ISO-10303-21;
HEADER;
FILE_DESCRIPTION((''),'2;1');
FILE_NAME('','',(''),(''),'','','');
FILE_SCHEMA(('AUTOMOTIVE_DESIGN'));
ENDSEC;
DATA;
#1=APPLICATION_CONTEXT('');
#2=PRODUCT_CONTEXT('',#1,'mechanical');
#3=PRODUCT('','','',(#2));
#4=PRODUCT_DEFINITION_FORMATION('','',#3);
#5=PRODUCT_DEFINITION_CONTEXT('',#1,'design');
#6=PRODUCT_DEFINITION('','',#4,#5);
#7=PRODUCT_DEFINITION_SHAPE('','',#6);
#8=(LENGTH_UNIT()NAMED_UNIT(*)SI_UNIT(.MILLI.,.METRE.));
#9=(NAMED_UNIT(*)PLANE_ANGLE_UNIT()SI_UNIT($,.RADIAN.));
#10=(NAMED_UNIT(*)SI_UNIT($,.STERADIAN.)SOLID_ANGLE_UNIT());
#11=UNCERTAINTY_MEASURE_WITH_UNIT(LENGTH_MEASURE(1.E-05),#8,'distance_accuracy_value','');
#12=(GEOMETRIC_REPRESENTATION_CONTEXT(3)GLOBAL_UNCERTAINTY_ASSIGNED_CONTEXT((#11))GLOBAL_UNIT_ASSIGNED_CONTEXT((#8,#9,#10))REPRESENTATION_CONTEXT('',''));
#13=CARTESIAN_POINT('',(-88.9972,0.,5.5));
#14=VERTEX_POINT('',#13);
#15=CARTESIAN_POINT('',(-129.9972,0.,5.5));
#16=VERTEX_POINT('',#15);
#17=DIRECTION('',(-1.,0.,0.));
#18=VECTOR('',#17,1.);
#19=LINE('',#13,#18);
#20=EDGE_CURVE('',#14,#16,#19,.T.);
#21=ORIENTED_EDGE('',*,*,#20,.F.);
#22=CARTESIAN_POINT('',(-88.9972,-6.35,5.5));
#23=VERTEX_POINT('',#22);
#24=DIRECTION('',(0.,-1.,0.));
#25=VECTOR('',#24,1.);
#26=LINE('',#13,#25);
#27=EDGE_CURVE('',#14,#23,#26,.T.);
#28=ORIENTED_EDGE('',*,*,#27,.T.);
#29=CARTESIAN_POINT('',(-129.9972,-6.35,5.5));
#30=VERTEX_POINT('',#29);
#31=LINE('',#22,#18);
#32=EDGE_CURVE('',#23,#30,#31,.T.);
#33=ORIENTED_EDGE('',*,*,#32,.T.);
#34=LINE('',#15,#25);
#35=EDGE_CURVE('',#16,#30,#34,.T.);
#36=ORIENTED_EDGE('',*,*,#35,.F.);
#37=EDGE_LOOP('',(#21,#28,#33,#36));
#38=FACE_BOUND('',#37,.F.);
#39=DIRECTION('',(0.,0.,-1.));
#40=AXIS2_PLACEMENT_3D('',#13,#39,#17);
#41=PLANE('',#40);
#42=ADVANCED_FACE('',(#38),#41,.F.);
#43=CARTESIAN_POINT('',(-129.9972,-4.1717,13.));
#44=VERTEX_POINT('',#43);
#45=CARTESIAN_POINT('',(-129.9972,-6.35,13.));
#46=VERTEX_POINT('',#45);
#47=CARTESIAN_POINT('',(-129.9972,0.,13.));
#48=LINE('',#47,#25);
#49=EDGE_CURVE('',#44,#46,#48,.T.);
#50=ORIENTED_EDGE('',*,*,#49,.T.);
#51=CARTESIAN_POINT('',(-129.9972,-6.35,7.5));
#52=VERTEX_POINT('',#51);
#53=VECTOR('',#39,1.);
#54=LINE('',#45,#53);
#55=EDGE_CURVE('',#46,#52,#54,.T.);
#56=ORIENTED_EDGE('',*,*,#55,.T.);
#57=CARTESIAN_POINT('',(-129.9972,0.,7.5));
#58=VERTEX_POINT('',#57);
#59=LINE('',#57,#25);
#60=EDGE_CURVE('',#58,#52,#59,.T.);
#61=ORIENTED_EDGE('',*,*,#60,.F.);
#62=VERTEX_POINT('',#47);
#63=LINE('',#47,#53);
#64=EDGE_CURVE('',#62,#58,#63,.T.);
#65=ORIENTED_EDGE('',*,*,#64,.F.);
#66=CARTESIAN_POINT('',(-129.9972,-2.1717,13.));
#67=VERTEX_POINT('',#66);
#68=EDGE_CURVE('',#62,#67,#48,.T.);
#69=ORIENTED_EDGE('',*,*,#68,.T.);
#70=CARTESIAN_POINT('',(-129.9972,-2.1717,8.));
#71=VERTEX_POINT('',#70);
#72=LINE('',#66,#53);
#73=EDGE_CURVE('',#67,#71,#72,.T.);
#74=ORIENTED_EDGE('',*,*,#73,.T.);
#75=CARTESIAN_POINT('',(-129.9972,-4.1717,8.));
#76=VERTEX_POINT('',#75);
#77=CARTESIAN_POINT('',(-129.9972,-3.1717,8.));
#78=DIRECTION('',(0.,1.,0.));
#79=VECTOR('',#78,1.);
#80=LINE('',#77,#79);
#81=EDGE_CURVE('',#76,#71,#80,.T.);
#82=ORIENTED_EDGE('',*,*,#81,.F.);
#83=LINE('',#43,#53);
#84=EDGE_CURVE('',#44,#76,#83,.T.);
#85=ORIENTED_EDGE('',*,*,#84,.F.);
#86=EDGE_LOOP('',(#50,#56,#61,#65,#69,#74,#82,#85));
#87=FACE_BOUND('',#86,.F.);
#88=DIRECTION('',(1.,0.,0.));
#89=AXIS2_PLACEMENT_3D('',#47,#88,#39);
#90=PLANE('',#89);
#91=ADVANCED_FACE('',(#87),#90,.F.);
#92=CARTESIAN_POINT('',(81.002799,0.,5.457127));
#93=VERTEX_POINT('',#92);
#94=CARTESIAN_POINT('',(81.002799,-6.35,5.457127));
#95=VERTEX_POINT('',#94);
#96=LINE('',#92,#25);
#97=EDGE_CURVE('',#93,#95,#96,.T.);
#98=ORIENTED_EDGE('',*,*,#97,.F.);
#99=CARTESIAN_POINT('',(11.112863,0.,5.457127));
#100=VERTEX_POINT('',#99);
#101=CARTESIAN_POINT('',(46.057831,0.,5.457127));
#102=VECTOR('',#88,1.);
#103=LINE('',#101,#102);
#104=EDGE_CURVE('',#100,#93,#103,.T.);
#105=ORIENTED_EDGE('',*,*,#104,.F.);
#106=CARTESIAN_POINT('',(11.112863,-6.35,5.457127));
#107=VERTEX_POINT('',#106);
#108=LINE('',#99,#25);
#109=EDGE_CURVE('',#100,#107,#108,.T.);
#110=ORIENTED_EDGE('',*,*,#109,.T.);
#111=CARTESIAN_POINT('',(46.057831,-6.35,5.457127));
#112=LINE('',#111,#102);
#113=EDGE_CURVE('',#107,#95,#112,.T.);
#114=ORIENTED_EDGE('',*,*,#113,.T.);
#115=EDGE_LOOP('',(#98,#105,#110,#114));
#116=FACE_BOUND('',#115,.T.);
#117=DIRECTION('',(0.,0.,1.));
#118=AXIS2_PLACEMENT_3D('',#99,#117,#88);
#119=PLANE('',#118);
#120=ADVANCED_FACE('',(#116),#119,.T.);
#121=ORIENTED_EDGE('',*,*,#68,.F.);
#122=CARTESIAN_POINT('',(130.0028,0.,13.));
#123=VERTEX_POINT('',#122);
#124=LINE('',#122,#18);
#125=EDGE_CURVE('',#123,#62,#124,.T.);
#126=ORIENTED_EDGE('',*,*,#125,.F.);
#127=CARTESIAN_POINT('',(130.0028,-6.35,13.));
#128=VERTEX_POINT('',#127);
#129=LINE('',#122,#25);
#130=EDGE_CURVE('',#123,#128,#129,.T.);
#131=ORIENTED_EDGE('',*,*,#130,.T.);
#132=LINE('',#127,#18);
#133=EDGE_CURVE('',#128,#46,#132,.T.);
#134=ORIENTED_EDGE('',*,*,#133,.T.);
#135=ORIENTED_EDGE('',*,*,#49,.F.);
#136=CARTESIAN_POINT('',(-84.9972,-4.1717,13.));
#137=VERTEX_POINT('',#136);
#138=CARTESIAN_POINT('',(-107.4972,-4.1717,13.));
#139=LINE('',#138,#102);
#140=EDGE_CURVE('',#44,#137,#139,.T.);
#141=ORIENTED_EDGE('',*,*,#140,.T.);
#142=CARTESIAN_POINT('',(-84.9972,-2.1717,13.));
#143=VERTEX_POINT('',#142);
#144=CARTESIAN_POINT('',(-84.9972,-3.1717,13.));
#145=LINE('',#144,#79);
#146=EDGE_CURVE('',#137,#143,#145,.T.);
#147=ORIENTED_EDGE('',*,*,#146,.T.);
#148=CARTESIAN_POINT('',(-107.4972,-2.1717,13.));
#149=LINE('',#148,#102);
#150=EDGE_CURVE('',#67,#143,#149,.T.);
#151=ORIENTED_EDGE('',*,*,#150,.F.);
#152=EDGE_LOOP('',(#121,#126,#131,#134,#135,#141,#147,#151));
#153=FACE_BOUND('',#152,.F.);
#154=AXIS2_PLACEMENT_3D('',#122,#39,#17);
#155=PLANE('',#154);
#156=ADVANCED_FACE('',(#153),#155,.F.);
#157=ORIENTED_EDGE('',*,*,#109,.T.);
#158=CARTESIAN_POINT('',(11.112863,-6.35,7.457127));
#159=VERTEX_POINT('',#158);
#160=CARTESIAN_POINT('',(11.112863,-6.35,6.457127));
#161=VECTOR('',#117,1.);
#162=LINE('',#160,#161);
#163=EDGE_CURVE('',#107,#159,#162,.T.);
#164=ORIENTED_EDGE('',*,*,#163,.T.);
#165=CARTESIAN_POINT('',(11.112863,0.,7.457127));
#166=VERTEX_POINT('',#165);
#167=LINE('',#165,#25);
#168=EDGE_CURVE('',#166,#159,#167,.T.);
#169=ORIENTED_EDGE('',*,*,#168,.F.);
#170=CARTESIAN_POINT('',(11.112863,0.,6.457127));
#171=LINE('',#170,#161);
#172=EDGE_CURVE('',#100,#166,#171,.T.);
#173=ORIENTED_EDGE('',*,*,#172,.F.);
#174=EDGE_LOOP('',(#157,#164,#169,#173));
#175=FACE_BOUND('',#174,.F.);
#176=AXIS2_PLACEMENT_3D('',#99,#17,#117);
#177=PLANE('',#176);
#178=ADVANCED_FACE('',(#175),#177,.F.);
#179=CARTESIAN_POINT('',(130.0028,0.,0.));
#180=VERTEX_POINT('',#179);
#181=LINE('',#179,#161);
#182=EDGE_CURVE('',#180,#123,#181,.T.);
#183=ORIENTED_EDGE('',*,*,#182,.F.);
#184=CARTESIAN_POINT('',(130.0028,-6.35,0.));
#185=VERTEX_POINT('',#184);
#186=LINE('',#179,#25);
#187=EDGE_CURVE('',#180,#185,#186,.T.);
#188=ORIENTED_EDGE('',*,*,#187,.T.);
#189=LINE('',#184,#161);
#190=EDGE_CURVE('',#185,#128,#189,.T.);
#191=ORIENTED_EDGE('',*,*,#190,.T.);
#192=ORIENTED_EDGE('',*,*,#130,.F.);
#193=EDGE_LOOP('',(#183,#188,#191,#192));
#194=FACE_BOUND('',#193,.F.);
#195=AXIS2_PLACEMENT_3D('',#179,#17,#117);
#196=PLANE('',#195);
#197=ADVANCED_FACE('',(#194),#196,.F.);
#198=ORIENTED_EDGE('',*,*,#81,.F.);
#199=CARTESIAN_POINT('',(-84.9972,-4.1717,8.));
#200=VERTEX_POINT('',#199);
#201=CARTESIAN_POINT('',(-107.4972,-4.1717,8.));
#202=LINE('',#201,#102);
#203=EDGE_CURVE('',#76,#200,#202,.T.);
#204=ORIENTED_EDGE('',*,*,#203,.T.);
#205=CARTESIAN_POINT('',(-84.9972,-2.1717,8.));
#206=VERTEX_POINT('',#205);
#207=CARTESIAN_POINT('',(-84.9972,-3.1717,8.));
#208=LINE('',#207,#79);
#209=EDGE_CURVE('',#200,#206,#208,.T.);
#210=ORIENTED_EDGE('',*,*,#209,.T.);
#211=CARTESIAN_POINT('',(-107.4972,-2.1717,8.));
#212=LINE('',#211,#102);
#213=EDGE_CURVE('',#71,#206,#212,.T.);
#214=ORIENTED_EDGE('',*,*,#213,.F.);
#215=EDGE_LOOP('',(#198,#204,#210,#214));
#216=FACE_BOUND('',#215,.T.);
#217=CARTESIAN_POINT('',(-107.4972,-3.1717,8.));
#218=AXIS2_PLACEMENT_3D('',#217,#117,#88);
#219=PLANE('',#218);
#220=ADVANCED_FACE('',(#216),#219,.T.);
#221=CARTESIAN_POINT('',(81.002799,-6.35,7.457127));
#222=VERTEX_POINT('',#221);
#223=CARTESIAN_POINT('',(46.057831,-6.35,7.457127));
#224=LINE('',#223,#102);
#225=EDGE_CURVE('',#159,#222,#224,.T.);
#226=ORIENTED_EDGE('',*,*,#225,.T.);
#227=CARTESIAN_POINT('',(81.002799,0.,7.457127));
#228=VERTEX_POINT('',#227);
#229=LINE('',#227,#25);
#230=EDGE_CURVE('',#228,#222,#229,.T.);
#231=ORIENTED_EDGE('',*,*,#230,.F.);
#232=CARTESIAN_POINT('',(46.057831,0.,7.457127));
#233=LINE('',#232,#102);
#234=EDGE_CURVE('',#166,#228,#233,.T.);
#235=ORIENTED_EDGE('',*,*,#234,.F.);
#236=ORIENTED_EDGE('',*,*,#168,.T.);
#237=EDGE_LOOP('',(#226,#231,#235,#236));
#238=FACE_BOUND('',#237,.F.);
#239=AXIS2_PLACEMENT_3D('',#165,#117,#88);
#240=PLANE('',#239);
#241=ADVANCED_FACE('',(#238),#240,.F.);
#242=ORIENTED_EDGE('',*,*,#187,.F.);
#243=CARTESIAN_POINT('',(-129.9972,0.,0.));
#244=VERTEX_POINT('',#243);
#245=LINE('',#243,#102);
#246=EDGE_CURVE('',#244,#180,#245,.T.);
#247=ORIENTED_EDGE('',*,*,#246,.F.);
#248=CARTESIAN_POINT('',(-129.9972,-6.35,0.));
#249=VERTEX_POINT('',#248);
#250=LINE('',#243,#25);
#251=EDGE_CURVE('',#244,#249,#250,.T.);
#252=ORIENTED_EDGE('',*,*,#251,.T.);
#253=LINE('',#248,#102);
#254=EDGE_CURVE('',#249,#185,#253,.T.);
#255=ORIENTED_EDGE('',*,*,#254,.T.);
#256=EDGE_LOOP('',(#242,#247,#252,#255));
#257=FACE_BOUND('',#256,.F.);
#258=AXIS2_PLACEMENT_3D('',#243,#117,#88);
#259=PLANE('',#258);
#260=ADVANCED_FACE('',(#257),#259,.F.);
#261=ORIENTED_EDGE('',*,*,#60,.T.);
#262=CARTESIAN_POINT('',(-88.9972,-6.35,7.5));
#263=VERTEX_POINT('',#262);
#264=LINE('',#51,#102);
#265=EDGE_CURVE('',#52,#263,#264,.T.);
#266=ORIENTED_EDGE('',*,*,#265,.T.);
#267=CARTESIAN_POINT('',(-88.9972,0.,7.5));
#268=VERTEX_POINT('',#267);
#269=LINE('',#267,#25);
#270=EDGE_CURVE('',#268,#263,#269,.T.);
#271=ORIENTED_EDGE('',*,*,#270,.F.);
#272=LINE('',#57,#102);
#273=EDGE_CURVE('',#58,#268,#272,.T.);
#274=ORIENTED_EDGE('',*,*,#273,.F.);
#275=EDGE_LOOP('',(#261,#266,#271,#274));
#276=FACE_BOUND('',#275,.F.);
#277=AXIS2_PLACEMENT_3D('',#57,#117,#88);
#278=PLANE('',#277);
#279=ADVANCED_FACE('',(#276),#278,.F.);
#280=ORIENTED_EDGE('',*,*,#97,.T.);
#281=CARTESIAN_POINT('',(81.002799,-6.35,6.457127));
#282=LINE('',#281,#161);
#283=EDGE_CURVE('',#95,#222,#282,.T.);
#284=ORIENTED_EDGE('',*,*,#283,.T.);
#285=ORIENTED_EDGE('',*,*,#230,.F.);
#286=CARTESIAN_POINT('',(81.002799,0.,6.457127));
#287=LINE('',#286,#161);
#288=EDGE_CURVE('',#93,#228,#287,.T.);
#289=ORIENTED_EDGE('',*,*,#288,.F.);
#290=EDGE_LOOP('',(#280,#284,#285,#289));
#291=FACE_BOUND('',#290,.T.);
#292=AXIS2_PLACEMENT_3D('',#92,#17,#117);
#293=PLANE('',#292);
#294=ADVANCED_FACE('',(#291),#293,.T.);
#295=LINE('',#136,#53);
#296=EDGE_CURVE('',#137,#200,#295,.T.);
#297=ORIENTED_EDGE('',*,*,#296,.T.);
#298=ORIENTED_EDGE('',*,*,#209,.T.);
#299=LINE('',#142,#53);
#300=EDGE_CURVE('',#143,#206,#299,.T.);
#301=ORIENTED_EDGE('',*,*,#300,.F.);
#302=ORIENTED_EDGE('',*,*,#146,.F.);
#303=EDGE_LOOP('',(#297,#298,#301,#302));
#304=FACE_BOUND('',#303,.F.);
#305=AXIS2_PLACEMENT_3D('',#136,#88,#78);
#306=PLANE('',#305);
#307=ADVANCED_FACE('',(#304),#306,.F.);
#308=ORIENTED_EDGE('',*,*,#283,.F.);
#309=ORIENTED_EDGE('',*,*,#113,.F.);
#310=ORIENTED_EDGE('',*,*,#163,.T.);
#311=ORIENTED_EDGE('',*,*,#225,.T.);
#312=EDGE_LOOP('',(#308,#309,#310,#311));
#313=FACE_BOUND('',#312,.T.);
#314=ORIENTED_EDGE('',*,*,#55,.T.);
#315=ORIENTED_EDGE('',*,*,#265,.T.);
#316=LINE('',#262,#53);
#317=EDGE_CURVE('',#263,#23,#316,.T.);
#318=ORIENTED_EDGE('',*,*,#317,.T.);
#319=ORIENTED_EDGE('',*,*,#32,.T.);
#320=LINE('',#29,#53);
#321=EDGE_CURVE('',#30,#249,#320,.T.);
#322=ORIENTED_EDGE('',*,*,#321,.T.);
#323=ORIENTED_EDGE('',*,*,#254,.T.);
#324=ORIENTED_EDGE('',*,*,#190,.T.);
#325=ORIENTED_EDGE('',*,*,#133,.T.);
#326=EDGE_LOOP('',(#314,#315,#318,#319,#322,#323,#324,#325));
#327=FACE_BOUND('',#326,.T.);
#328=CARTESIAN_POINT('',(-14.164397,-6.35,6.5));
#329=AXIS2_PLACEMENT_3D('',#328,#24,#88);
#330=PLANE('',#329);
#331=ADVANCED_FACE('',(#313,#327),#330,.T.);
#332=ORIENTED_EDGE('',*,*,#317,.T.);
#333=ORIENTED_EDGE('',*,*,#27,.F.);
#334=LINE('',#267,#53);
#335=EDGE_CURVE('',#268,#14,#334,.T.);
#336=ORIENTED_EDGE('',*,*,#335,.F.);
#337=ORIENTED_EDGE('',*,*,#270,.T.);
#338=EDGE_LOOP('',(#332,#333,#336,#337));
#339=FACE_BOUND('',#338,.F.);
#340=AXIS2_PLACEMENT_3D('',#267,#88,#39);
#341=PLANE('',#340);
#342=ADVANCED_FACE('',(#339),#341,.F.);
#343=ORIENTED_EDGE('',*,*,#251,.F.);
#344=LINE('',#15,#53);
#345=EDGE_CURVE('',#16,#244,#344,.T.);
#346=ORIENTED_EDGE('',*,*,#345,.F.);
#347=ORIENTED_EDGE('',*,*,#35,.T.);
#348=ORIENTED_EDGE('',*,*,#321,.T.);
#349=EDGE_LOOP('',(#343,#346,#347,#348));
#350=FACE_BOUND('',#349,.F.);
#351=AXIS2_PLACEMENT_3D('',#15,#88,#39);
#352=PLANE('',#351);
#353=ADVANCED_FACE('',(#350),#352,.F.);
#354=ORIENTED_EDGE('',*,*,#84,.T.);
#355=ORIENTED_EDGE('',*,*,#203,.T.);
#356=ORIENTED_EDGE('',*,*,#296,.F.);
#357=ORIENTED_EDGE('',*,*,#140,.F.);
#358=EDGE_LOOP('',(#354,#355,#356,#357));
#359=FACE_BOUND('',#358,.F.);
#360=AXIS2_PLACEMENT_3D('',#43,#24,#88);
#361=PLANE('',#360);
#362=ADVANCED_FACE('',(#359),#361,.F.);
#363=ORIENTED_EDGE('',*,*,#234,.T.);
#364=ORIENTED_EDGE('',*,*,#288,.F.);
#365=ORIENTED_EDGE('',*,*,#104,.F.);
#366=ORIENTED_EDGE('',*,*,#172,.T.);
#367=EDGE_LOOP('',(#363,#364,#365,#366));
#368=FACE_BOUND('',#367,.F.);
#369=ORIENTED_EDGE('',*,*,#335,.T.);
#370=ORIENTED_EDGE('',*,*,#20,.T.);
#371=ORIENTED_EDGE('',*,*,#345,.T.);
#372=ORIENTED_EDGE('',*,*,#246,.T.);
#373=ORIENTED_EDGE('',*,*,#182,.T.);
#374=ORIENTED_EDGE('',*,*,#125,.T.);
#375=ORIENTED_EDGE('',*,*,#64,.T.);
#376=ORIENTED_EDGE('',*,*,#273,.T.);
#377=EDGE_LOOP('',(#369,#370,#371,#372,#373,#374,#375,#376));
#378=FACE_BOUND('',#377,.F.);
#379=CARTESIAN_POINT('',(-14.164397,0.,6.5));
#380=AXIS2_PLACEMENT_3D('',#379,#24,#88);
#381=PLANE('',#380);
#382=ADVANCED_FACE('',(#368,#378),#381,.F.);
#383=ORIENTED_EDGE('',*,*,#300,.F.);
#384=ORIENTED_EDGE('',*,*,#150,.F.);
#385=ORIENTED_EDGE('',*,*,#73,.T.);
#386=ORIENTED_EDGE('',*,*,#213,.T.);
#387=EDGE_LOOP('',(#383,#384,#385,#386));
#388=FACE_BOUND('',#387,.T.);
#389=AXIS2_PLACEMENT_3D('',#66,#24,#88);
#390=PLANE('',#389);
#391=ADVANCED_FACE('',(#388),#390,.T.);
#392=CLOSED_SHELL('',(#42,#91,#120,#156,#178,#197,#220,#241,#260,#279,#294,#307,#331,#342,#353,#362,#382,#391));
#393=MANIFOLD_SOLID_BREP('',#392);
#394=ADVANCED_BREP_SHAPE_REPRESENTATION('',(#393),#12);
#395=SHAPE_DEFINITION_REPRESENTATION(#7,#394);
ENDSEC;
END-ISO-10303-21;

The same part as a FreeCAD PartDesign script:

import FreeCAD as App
import Part
import Sketcher

V = App.Vector


def add_polygon(sketch, points):
    """Adds a closed chain of lines whose ends are joined by coincident constraints."""
    first, n = sketch.GeometryCount, len(points)
    for a, b in zip(points, points[1:] + points[:1]):
        sketch.addGeometry(Part.LineSegment(App.Vector(*a, 0), App.Vector(*b, 0)), False)
    for i in range(n):
        sketch.addConstraint(Sketcher.Constraint("Coincident", first + i, 2, first + (i + 1) % n, 1))

doc = App.newDocument("Part")
body = doc.addObject("PartDesign::Body", "Body")

# Sketch on XZ plane
sketch1 = doc.addObject("Sketcher::SketchObject", "Sketch")
body.addObject(sketch1)
sketch1.AttachmentSupport = (doc.XZ_Plane, [""])
sketch1.MapMode = "FlatFace"
add_polygon(sketch1, [(130, 13), (-130, 13), (-130, 7.5), (-89, 7.5), (-89, 5.5), (-130, 5.5), (-130, 0), (130, 0)])  # lines 0-7
add_polygon(sketch1, [(81, 5.5), (11.1, 5.5), (11.1, 7.5), (81, 7.5)])  # lines 8-11
sketch1.addConstraint([
    Sketcher.Constraint("Horizontal", 0),
    Sketcher.Constraint("Vertical", 1),
    Sketcher.Constraint("Horizontal", 2),
    Sketcher.Constraint("Vertical", 3),
    Sketcher.Constraint("Horizontal", 4),
    Sketcher.Constraint("Vertical", 5),
    Sketcher.Constraint("Horizontal", 6),
    Sketcher.Constraint("Vertical", 7),
    Sketcher.Constraint("Horizontal", 8),
    Sketcher.Constraint("Vertical", 9),
    Sketcher.Constraint("Horizontal", 10),
    Sketcher.Constraint("Vertical", 11),
    Sketcher.Constraint("PointOnObject", 5, 2, -1),
    Sketcher.Constraint("Vertical", 1, 2, 4, 2),
    Sketcher.Constraint("Equal", 1, 5),
    Sketcher.Constraint("Equal", 3, 9),
    Sketcher.Constraint("DistanceX", 0, 2, 0, 1, 260.0),
    Sketcher.Constraint("DistanceX", 2, 1, 2, 2, 41.0),
    Sketcher.Constraint("DistanceY", 3, 2, 3, 1, 2.0),
    Sketcher.Constraint("DistanceY", 7, 1, 7, 2, 13.0),
    Sketcher.Constraint("DistanceX", 10, 2, 7, 2, 49.000001),
    Sketcher.Constraint("DistanceX", 0, 2, -1, 1, 129.9972),
    Sketcher.Constraint("DistanceX", 8, 2, 8, 1, 69.889937),
    Sketcher.Constraint("DistanceY", -1, 1, 8, 2, 5.457127),
])
pad1 = doc.addObject("PartDesign::Pad", "Pad")
body.addObject(pad1)
pad1.Profile = sketch1
pad1.Length = 6.35

# Sketch on XY plane
sketch2 = doc.addObject("Sketcher::SketchObject", "Sketch001")
body.addObject(sketch2)
sketch2.AttachmentSupport = (doc.XY_Plane, [""])
sketch2.MapMode = "FlatFace"
sketch2.AttachmentOffset = App.Placement(V(0, 0, 13), App.Rotation())
add_polygon(sketch2, [(-130, -2.2), (-130, -4.2), (-85, -4.2), (-85, -2.2)])  # lines 0-3
sketch2.addConstraint([
    Sketcher.Constraint("Vertical", 0),
    Sketcher.Constraint("Horizontal", 1),
    Sketcher.Constraint("Vertical", 2),
    Sketcher.Constraint("Horizontal", 3),
    Sketcher.Constraint("DistanceX", 1, 1, 1, 2, 45.0),
    Sketcher.Constraint("DistanceY", 0, 2, 0, 1, 2.0),
    Sketcher.Constraint("DistanceX", 0, 2, -1, 1, 129.9972),
    Sketcher.Constraint("DistanceY", 0, 2, -1, 1, 4.1717),
])
pocket1 = doc.addObject("PartDesign::Pocket", "Pocket")
body.addObject(pocket1)
pocket1.Profile = sketch2
pocket1.Length = 5

doc.recompute()
